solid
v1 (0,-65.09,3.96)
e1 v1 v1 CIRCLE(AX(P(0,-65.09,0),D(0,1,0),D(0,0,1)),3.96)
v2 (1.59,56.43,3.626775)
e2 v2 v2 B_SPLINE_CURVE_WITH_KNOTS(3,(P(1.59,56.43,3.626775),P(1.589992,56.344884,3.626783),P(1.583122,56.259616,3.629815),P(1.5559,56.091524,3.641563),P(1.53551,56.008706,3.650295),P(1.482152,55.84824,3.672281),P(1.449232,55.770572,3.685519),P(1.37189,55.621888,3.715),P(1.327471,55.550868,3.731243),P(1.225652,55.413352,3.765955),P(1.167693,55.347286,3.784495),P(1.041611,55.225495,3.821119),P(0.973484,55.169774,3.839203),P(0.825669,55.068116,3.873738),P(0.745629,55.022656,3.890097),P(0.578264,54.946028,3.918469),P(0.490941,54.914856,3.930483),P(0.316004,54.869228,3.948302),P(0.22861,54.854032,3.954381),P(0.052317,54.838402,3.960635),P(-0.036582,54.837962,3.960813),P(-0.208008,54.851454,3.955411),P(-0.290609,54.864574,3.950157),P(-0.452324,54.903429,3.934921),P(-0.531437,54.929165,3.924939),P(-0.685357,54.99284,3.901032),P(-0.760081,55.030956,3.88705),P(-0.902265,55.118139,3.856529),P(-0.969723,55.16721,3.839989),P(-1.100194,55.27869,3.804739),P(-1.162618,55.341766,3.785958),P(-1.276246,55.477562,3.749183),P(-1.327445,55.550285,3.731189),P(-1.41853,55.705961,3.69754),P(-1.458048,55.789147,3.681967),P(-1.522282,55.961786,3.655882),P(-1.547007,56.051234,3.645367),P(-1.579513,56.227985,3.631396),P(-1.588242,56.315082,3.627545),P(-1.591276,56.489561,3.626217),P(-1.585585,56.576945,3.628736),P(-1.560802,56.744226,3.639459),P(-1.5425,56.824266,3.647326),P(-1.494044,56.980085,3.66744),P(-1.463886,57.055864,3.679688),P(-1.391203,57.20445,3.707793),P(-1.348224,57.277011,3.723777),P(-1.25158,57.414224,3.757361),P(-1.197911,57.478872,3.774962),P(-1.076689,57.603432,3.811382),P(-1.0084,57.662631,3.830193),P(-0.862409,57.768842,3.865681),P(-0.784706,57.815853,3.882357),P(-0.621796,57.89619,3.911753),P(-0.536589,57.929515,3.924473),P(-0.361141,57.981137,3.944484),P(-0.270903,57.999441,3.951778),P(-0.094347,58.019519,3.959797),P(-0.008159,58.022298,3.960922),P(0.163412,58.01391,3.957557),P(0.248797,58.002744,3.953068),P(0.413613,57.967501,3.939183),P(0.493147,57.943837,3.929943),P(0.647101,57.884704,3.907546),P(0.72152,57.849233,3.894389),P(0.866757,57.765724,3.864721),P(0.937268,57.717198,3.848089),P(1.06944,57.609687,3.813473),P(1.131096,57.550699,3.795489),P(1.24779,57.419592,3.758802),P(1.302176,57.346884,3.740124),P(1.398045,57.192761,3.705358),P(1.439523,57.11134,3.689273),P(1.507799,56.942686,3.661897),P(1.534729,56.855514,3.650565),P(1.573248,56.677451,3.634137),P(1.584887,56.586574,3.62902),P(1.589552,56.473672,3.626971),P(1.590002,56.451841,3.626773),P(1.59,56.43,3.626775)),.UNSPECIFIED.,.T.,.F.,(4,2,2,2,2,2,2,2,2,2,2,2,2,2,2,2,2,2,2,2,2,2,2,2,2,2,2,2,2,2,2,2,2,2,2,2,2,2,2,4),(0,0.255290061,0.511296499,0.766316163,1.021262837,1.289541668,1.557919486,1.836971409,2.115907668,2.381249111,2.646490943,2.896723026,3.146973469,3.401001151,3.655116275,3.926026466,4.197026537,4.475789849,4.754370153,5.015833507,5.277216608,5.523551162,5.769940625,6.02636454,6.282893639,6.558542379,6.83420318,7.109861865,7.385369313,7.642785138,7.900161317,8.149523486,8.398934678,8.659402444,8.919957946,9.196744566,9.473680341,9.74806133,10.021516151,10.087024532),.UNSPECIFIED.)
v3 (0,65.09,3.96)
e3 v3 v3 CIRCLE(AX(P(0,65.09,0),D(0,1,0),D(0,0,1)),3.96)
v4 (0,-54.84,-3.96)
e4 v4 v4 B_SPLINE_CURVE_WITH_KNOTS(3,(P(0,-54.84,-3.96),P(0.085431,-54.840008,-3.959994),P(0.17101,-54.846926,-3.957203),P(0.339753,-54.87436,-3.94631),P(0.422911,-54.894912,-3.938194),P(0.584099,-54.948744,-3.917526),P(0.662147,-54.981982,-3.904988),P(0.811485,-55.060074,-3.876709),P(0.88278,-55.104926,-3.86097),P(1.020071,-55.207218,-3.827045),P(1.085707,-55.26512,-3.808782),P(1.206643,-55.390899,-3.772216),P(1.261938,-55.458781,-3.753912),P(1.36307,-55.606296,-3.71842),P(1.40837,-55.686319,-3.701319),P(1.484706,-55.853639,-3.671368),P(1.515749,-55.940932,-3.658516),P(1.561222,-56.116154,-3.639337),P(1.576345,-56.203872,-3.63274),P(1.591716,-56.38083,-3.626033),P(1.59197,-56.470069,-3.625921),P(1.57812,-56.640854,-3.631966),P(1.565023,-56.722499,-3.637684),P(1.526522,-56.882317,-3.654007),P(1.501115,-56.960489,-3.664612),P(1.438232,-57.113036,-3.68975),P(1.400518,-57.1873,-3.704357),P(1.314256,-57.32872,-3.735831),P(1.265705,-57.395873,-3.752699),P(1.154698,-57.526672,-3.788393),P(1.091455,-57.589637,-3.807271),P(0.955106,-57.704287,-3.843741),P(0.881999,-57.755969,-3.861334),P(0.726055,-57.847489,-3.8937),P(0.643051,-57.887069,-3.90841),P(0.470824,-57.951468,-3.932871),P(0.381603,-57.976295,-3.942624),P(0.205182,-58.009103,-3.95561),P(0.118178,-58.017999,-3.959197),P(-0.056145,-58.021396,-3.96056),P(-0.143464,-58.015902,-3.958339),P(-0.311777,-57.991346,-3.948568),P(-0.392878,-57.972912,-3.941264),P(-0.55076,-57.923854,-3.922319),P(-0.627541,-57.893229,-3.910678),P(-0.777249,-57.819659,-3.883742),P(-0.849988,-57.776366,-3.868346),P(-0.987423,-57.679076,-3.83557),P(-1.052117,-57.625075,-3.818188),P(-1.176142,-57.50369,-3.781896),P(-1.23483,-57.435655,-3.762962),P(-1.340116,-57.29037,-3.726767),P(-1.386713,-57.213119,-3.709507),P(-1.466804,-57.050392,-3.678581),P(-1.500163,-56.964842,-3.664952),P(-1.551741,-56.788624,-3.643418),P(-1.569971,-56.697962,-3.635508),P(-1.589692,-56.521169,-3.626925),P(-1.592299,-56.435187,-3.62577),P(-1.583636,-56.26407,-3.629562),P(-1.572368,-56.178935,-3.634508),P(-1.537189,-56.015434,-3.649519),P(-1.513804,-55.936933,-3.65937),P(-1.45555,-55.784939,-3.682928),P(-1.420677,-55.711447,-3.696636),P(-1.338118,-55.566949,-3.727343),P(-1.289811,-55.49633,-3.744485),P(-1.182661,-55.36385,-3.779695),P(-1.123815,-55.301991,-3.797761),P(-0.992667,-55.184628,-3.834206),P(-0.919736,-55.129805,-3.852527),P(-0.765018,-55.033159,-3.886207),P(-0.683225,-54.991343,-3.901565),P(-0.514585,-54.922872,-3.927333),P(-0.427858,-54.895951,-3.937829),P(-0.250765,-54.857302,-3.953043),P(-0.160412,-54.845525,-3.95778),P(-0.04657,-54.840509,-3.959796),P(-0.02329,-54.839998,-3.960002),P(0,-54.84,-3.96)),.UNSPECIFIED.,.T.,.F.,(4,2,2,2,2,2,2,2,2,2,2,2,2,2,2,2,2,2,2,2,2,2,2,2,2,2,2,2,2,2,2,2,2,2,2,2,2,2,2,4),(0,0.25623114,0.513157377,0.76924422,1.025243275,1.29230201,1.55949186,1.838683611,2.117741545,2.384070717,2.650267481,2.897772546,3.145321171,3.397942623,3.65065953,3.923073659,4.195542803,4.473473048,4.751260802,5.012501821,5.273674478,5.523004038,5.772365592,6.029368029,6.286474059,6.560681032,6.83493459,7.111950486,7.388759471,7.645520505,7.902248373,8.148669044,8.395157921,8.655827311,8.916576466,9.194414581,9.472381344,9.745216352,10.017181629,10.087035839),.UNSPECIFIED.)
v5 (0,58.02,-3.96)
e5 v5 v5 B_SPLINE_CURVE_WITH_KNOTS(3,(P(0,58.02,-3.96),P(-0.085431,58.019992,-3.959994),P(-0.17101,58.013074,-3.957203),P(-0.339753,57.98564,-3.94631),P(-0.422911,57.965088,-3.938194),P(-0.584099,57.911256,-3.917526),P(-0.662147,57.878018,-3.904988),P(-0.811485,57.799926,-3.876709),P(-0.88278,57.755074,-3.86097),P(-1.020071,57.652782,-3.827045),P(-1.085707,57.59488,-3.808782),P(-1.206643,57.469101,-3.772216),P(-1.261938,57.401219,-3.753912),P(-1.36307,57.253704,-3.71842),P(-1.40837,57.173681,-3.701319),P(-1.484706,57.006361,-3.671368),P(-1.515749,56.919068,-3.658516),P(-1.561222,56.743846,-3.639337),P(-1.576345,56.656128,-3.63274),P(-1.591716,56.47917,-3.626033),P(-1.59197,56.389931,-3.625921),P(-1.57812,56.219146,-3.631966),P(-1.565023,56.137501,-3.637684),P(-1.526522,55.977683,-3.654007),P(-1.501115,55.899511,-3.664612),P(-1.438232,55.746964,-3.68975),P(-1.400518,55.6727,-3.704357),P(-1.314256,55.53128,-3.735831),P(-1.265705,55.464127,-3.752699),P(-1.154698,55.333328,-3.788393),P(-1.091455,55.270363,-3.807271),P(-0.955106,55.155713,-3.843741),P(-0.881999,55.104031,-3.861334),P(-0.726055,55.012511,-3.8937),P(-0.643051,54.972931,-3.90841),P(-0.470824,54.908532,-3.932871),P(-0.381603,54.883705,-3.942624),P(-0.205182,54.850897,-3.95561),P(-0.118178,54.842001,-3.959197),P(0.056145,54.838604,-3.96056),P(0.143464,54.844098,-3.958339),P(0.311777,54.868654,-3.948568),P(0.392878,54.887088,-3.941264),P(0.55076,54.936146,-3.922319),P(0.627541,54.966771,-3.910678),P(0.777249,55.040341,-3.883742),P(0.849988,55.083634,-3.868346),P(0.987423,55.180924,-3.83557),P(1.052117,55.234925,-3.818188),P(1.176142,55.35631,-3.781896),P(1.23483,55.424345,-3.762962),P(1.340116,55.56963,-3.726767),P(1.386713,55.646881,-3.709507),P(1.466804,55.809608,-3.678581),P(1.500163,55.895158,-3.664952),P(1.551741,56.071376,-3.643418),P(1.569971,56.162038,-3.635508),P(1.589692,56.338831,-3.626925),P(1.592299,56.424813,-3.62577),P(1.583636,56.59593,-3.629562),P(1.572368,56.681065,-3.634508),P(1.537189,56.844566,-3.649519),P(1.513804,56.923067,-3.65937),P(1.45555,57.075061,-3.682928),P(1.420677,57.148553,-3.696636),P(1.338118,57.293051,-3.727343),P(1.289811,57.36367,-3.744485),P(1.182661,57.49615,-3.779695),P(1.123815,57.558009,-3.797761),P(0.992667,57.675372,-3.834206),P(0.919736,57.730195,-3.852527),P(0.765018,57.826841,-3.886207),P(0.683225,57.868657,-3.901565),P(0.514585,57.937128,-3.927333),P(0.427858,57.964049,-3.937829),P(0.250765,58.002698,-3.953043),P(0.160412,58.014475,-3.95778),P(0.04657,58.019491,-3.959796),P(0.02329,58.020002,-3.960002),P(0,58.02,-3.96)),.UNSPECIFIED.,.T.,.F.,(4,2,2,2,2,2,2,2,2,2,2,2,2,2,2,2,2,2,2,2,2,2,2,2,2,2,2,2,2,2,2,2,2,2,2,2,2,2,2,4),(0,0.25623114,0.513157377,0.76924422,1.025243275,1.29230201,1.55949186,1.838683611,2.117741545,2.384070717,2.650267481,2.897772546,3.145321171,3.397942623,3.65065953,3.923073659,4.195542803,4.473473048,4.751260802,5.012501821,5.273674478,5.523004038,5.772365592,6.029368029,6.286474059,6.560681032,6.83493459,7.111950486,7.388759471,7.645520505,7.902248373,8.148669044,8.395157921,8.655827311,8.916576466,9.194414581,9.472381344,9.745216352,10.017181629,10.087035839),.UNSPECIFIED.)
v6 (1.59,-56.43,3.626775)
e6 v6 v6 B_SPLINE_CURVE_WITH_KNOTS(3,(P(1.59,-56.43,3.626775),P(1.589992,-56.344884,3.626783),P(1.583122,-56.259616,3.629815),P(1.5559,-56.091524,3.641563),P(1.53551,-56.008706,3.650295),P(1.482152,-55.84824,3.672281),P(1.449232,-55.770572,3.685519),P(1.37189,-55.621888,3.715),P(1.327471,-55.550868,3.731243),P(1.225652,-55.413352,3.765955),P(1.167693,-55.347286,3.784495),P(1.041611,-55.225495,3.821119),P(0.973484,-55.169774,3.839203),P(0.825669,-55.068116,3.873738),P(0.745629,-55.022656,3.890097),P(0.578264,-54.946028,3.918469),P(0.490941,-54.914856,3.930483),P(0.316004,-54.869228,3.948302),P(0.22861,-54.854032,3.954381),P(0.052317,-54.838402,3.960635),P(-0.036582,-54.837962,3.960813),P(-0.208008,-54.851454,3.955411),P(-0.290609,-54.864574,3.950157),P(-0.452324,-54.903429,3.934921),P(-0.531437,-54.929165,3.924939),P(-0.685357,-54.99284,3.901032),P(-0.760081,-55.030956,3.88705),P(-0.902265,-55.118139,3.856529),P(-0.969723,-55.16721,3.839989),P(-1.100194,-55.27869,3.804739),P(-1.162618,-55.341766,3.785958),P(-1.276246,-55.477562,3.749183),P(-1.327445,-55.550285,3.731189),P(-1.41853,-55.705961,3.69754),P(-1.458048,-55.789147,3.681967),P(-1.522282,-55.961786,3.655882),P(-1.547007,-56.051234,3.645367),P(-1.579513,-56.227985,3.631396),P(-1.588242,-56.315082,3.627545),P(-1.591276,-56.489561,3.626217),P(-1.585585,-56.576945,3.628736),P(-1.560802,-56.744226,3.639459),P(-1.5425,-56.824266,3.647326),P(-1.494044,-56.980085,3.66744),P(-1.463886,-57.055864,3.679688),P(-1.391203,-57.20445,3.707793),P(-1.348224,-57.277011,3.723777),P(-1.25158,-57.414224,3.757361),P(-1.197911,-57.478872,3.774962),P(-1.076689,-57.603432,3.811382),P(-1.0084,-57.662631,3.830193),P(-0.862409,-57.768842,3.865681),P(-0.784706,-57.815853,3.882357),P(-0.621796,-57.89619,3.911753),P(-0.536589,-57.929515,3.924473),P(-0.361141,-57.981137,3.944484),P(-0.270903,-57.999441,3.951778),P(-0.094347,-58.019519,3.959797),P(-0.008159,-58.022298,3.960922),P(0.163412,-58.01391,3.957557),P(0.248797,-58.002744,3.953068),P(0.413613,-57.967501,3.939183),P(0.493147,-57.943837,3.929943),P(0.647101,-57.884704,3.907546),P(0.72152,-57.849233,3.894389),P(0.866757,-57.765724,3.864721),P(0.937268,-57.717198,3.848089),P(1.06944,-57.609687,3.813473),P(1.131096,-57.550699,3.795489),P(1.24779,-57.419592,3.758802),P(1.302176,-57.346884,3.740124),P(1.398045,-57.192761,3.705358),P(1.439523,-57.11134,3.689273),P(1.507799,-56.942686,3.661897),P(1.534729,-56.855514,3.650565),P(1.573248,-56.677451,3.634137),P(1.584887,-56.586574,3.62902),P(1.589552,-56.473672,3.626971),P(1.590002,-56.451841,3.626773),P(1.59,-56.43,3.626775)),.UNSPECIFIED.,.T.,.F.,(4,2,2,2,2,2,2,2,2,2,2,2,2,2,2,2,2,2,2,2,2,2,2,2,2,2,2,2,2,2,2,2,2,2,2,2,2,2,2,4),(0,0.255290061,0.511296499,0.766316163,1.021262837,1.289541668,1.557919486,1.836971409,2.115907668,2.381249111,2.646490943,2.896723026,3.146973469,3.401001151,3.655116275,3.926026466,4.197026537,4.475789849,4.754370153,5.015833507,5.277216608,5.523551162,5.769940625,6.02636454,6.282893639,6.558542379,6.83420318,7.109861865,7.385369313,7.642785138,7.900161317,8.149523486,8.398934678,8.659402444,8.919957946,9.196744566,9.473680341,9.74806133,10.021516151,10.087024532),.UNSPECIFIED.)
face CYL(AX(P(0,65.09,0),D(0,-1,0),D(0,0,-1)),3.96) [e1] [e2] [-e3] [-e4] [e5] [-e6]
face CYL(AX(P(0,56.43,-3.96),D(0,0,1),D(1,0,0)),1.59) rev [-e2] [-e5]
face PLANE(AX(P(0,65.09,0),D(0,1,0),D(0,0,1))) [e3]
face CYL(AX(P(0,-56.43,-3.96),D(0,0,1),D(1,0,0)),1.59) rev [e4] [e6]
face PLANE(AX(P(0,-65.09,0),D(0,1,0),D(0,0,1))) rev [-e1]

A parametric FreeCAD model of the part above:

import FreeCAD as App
import Part
import Sketcher
from FreeCAD import Vector
Q = App.Units.Quantity

doc = App.newDocument("Part")
body = doc.addObject("PartDesign::Body", "Body")

sketch1 = body.newObject("Sketcher::SketchObject", "Sketch")
sketch1.AttachmentSupport = (doc.getObject("XZ_Plane"), [""])
sketch1.MapMode = "FlatFace"
sketch1.addGeometry(Part.Circle(Vector(0, 0, 0), Vector(0, 0, 1), 4), False)
sketch1.addConstraint([
    Sketcher.Constraint("Coincident", 0, 3, -1, 1),
    Sketcher.Constraint("Diameter", 0, Q("7.92 mm")),
])
pad1 = body.newObject("PartDesign::Pad", "Pad")
pad1.Profile = sketch1
pad1.Length = 130.18
pad1.Midplane = True

sketch2 = body.newObject("Sketcher::SketchObject", "Sketch001")
sketch2.AttachmentSupport = (doc.getObject("XY_Plane"), [""])
sketch2.MapMode = "FlatFace"
sketch2.addGeometry(Part.Circle(Vector(0, 56.4, 0), Vector(0, 0, 1), 1.6), False)
sketch2.addConstraint([
    Sketcher.Constraint("PointOnObject", 0, 3, -2),
    Sketcher.Constraint("Diameter", 0, Q("3.18 mm")),
    Sketcher.Constraint("DistanceY", -1, 1, 0, 3, Q("56.43 mm")),
])
pocket1 = body.newObject("PartDesign::Pocket", "Pocket")
pocket1.Profile = sketch2
pocket1.Length = 132.660955
pocket1.Midplane = True
doc.recompute()

mirrored = body.newObject("PartDesign::Mirrored", "Mirrored")
mirrored.Originals = [pocket1]
mirrored.MirrorPlane = (doc.getObject("XZ_Plane"), [""])
body.Tip = mirrored

doc.recompute()
